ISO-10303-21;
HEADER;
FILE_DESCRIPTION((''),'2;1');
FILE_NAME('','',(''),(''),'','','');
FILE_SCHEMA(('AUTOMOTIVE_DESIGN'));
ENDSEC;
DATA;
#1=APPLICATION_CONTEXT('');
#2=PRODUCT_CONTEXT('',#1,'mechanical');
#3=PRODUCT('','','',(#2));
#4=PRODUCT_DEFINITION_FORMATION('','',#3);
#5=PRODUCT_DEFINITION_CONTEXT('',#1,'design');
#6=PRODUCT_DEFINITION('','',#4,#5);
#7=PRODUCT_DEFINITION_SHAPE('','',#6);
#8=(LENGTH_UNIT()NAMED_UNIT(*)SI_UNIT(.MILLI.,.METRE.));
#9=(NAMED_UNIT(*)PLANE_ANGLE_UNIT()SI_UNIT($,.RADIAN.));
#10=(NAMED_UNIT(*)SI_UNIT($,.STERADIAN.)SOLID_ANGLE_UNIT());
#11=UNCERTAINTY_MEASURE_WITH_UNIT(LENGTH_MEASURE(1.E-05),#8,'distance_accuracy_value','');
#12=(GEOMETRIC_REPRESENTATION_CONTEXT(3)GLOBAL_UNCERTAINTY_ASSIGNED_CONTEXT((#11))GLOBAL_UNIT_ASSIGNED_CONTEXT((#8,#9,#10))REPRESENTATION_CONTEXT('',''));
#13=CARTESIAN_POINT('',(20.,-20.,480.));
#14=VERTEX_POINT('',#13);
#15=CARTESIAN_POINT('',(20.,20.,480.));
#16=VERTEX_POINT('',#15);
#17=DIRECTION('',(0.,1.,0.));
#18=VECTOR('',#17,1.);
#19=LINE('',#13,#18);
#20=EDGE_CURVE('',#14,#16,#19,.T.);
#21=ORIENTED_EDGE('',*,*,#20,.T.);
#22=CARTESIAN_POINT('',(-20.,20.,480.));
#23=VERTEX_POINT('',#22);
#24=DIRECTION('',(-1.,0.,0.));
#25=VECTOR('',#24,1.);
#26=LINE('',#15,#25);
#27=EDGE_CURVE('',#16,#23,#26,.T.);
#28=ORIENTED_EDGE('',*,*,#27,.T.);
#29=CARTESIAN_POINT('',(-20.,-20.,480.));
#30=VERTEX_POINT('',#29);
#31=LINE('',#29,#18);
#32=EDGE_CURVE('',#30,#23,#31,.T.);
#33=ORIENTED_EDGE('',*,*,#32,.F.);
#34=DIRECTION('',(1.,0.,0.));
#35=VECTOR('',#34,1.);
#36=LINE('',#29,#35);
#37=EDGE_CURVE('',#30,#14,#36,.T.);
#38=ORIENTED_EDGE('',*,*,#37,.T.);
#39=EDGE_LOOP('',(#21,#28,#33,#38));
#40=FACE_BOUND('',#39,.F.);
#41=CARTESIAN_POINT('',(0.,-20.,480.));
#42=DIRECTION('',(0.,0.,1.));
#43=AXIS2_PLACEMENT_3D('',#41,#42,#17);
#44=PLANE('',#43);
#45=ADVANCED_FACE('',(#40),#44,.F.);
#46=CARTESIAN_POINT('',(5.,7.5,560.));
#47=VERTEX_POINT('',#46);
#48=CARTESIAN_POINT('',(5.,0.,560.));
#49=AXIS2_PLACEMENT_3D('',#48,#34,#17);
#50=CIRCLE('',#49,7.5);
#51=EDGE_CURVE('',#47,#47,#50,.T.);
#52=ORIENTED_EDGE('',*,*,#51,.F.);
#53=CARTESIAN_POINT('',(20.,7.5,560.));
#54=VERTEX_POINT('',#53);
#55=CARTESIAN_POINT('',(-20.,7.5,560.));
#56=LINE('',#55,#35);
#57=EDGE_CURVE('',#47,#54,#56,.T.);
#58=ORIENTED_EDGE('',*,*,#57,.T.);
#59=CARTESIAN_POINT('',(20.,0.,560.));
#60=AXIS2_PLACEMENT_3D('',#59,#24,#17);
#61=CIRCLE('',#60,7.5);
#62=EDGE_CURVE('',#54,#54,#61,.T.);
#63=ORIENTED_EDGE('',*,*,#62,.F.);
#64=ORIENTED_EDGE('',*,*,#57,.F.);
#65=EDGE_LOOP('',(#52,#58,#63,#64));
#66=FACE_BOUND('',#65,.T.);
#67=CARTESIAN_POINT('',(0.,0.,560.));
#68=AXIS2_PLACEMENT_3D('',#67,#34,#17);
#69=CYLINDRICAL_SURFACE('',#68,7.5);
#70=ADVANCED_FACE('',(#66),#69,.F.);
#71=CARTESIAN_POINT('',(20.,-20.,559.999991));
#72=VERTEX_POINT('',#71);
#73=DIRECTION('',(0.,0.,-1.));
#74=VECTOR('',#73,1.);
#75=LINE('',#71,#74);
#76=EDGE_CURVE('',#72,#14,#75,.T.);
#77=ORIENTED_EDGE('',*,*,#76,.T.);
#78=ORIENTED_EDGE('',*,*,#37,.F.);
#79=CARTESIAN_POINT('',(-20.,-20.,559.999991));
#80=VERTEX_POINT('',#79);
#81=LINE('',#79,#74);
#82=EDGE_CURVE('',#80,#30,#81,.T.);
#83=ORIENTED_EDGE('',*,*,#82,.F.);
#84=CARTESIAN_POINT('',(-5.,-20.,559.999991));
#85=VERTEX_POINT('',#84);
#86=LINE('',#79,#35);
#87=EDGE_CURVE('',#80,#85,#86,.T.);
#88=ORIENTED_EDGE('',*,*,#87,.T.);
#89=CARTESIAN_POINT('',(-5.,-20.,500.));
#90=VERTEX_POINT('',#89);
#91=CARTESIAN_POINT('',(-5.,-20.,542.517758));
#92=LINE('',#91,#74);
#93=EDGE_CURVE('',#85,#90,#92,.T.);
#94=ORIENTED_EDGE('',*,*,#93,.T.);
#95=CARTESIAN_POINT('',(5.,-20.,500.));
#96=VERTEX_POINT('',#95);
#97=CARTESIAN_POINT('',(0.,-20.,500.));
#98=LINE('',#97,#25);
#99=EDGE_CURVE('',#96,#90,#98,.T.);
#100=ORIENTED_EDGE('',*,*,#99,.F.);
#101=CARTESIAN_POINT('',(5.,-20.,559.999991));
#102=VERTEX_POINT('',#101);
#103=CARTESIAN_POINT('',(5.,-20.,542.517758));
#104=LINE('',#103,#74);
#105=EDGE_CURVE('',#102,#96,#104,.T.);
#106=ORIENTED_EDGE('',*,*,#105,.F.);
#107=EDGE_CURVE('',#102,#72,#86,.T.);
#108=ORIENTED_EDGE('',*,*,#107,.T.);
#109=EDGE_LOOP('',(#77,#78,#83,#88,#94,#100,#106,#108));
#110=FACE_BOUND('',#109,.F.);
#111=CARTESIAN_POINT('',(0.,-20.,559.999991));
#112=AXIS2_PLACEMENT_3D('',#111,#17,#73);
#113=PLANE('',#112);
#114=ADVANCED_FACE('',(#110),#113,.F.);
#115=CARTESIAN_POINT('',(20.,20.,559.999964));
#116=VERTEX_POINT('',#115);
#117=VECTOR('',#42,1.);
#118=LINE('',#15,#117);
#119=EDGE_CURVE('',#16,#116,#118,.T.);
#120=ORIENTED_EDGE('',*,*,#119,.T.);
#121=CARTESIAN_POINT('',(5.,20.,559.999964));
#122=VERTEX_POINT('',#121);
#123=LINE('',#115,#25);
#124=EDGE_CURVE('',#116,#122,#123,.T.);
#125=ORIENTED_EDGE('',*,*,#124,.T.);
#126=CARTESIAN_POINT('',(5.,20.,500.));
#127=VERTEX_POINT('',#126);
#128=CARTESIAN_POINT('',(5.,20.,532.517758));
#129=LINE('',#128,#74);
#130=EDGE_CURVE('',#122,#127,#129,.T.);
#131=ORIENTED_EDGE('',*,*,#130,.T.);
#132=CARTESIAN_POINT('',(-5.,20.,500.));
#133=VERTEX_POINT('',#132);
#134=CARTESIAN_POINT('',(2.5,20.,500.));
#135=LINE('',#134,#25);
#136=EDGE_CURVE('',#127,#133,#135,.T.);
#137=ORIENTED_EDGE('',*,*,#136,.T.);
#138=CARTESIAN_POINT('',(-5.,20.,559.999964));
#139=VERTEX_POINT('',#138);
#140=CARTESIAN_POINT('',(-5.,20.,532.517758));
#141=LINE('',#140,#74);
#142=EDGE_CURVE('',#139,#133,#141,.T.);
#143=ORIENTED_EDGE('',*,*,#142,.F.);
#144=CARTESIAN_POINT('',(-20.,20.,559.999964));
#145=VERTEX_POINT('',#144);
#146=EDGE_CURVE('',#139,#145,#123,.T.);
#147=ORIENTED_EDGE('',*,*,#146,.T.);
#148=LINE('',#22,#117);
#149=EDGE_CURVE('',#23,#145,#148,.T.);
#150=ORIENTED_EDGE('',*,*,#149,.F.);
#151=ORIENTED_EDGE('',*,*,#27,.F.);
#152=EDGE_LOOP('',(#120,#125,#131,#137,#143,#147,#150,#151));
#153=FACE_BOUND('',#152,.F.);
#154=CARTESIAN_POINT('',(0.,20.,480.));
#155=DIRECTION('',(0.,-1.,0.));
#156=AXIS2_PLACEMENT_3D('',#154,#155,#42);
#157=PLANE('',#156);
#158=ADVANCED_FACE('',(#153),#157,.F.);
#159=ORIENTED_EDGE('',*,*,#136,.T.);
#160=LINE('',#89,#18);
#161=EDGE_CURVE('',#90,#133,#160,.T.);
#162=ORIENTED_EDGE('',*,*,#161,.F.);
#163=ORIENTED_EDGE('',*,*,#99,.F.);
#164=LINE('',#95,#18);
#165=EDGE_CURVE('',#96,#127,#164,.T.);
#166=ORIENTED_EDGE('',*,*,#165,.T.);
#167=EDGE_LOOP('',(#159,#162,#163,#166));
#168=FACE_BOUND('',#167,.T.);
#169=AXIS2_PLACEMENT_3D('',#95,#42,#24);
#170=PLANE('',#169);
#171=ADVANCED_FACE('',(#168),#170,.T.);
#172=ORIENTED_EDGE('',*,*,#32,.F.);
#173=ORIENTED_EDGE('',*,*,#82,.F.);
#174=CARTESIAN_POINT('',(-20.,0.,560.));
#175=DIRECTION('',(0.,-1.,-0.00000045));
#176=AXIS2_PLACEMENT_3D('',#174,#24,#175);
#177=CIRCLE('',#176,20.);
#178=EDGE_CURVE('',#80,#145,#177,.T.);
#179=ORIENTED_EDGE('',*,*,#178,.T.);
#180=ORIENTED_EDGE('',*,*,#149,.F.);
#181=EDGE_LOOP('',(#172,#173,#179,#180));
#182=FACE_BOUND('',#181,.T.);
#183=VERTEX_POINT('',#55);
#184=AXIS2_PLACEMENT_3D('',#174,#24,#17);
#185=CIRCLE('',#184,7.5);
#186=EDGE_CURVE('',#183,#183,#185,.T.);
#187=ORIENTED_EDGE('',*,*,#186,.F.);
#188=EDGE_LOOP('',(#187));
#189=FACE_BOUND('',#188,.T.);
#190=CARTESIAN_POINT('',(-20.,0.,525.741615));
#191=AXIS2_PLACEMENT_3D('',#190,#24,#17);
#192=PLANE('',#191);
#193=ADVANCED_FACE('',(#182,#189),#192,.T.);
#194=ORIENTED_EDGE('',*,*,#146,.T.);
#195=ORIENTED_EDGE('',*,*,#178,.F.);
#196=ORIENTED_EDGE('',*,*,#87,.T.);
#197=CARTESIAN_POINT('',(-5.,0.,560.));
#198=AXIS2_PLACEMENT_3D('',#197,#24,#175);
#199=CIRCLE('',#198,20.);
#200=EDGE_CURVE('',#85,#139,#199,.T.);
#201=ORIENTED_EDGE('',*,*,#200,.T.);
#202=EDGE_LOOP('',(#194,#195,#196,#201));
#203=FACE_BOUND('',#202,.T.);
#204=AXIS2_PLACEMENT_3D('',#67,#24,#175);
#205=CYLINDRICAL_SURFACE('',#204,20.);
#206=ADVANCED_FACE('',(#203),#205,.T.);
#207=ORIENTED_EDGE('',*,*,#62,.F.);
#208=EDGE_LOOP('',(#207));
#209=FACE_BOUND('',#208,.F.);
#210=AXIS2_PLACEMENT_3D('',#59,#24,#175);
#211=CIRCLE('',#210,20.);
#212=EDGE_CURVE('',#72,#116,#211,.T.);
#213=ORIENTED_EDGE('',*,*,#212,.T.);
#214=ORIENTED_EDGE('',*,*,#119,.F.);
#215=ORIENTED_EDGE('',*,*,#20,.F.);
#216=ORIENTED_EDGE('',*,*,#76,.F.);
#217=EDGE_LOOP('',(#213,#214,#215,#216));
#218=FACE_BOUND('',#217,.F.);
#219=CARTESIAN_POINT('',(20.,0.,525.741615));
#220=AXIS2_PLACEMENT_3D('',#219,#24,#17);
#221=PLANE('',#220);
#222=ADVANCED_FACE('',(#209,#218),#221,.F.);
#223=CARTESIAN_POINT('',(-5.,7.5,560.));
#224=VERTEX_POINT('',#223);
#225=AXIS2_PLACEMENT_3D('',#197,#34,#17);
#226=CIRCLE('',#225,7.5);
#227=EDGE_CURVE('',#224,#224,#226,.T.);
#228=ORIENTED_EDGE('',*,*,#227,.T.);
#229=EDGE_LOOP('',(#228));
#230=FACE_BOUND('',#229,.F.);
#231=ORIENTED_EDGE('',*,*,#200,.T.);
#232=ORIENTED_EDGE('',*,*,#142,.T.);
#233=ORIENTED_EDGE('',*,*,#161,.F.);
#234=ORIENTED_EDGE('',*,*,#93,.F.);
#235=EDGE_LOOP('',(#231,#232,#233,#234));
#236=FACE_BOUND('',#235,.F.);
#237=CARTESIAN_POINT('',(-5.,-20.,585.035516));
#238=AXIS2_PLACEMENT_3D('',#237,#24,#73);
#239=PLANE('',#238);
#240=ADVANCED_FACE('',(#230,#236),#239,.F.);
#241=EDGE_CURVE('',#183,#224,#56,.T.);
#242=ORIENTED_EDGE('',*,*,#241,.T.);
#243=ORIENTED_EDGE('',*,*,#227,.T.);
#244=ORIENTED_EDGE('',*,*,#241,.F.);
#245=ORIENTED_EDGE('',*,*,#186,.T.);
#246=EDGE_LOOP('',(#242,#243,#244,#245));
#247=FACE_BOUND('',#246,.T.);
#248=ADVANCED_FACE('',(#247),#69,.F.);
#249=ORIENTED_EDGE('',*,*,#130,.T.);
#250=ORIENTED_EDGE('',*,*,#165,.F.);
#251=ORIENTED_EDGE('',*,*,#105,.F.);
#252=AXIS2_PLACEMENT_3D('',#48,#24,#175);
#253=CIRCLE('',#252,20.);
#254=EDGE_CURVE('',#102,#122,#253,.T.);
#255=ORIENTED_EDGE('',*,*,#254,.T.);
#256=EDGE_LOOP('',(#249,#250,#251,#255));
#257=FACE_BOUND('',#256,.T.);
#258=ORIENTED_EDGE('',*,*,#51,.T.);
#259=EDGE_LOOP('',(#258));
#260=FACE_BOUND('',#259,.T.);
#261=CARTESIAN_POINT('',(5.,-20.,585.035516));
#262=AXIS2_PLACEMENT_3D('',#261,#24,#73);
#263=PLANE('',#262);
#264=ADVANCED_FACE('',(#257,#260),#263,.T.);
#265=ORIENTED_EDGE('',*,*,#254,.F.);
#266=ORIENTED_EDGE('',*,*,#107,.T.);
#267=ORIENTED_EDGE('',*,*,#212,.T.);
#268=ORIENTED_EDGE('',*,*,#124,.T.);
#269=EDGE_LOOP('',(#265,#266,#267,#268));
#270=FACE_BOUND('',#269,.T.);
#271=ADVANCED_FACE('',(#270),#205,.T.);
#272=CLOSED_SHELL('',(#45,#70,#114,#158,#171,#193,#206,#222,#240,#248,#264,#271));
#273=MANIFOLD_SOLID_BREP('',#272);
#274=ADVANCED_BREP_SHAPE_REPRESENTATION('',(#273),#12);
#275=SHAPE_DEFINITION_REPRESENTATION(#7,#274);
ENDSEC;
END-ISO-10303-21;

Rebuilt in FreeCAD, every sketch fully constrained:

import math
import FreeCAD as App
import Part
import Sketcher


def add_polygon(sketch, points):
    """Adds a closed chain of lines whose ends are joined by coincident constraints."""
    first, n = sketch.GeometryCount, len(points)
    for a, b in zip(points, points[1:] + points[:1]):
        sketch.addGeometry(Part.LineSegment(App.Vector(*a, 0), App.Vector(*b, 0)), False)
    for i in range(n):
        sketch.addConstraint(Sketcher.Constraint("Coincident", first + i, 2, first + (i + 1) % n, 1))

doc = App.newDocument("Part")
body = doc.addObject("PartDesign::Body", "Body")

# Sketch on XZ plane
sketch1 = body.newObject("Sketcher::SketchObject", "Sketch")
sketch1.AttachmentSupport = (doc.getObject("XZ_Plane"), [""])
sketch1.MapMode = "FlatFace"
sketch1.AttachmentOffset = App.Placement(App.Vector(0, 0, 20), App.Rotation())
add_polygon(sketch1, [(-5, 60), (-5, -25), (5, -25), (5, 60)])  # lines 0-3
sketch1.addConstraint([
    Sketcher.Constraint("Vertical", 0),
    Sketcher.Constraint("Horizontal", 1),
    Sketcher.Constraint("Vertical", 2),
    Sketcher.Constraint("Horizontal", 3),
    Sketcher.Constraint("DistanceX", 1, 1, 1, 2, 10.0),
    Sketcher.Constraint("DistanceX", 0, 2, -1, 1, 5.0),
    Sketcher.Constraint("DistanceY", -1, 1, 2, 2, 60.0),
    Sketcher.Constraint("DistanceY", 0, 2, 0, 1, 85.035517),
])
pad1 = body.newObject("PartDesign::Pad", "Pad")
pad1.Profile = sketch1
pad1.Length = 50
pad1.Reversed = True
body2 = doc.addObject("PartDesign::Body", "Body001")

# Sketch on YZ plane
sketch2 = body2.newObject("Sketcher::SketchObject", "Sketch001")
sketch2.AttachmentSupport = (doc.getObject("YZ_Plane001"), [""])
sketch2.MapMode = "FlatFace"
sketch2.addGeometry([
    Part.ArcOfCircle(Part.Circle(App.Vector(0, 0, 0), App.Vector(0, 0, 1), 20), math.radians(179.999974), math.radians(360.000103)),  # 0
    Part.LineSegment(App.Vector(20, 0.000036, 0), App.Vector(20, 80, 0)),  # 1
    Part.LineSegment(App.Vector(20, 80, 0), App.Vector(-20, 80, 0)),  # 2
    Part.LineSegment(App.Vector(-20, 80, 0), App.Vector(-20, 0.000009, 0)),  # 3
    Part.Circle(App.Vector(0, 0, 0), App.Vector(0, 0, 1), 7.5),  # 4
], False)
sketch2.addConstraint([
    Sketcher.Constraint("Coincident", 0, 2, 1, 1),
    Sketcher.Constraint("Coincident", 1, 2, 2, 1),
    Sketcher.Constraint("Coincident", 2, 2, 3, 1),
    Sketcher.Constraint("Coincident", 3, 2, 0, 1),
    Sketcher.Constraint("Vertical", 1),
    Sketcher.Constraint("Horizontal", 2),
    Sketcher.Constraint("Vertical", 3),
    Sketcher.Constraint("Coincident", 0, 3, -1, 1),
    Sketcher.Constraint("Coincident", 4, 3, -1, 1),
    Sketcher.Constraint("Diameter", 4, 15.0),
    Sketcher.Constraint("Radius", 0, 20.0),
    Sketcher.Constraint("DistanceY", -1, 1, 1, 2, 80.0),
    Sketcher.Constraint("DistanceY", 3, 2, 3, 1, 79.999991),
    Sketcher.Constraint("DistanceY", 1, 1, 1, 2, 79.999964),
])
pad2 = body2.newObject("PartDesign::Pad", "Pad001")
pad2.Profile = sketch2
pad2.Length = 40
pad2.Midplane = True
doc.recompute()

boolean = body2.newObject("PartDesign::Boolean", "Boolean")
boolean.Type = "Cut"
boolean.addObjects([body])
body3 = doc.addObject("PartDesign::Body", "Body002")
doc.recompute()

body2.Placement = App.Placement(App.Vector(0, 0, 560), App.Rotation(App.Vector(0, 1, 0), 180))
boolean2 = body3.newObject("PartDesign::Boolean", "Boolean001")
boolean2.Type = "Fuse"
boolean2.addObjects([body2])

doc.recompute()
